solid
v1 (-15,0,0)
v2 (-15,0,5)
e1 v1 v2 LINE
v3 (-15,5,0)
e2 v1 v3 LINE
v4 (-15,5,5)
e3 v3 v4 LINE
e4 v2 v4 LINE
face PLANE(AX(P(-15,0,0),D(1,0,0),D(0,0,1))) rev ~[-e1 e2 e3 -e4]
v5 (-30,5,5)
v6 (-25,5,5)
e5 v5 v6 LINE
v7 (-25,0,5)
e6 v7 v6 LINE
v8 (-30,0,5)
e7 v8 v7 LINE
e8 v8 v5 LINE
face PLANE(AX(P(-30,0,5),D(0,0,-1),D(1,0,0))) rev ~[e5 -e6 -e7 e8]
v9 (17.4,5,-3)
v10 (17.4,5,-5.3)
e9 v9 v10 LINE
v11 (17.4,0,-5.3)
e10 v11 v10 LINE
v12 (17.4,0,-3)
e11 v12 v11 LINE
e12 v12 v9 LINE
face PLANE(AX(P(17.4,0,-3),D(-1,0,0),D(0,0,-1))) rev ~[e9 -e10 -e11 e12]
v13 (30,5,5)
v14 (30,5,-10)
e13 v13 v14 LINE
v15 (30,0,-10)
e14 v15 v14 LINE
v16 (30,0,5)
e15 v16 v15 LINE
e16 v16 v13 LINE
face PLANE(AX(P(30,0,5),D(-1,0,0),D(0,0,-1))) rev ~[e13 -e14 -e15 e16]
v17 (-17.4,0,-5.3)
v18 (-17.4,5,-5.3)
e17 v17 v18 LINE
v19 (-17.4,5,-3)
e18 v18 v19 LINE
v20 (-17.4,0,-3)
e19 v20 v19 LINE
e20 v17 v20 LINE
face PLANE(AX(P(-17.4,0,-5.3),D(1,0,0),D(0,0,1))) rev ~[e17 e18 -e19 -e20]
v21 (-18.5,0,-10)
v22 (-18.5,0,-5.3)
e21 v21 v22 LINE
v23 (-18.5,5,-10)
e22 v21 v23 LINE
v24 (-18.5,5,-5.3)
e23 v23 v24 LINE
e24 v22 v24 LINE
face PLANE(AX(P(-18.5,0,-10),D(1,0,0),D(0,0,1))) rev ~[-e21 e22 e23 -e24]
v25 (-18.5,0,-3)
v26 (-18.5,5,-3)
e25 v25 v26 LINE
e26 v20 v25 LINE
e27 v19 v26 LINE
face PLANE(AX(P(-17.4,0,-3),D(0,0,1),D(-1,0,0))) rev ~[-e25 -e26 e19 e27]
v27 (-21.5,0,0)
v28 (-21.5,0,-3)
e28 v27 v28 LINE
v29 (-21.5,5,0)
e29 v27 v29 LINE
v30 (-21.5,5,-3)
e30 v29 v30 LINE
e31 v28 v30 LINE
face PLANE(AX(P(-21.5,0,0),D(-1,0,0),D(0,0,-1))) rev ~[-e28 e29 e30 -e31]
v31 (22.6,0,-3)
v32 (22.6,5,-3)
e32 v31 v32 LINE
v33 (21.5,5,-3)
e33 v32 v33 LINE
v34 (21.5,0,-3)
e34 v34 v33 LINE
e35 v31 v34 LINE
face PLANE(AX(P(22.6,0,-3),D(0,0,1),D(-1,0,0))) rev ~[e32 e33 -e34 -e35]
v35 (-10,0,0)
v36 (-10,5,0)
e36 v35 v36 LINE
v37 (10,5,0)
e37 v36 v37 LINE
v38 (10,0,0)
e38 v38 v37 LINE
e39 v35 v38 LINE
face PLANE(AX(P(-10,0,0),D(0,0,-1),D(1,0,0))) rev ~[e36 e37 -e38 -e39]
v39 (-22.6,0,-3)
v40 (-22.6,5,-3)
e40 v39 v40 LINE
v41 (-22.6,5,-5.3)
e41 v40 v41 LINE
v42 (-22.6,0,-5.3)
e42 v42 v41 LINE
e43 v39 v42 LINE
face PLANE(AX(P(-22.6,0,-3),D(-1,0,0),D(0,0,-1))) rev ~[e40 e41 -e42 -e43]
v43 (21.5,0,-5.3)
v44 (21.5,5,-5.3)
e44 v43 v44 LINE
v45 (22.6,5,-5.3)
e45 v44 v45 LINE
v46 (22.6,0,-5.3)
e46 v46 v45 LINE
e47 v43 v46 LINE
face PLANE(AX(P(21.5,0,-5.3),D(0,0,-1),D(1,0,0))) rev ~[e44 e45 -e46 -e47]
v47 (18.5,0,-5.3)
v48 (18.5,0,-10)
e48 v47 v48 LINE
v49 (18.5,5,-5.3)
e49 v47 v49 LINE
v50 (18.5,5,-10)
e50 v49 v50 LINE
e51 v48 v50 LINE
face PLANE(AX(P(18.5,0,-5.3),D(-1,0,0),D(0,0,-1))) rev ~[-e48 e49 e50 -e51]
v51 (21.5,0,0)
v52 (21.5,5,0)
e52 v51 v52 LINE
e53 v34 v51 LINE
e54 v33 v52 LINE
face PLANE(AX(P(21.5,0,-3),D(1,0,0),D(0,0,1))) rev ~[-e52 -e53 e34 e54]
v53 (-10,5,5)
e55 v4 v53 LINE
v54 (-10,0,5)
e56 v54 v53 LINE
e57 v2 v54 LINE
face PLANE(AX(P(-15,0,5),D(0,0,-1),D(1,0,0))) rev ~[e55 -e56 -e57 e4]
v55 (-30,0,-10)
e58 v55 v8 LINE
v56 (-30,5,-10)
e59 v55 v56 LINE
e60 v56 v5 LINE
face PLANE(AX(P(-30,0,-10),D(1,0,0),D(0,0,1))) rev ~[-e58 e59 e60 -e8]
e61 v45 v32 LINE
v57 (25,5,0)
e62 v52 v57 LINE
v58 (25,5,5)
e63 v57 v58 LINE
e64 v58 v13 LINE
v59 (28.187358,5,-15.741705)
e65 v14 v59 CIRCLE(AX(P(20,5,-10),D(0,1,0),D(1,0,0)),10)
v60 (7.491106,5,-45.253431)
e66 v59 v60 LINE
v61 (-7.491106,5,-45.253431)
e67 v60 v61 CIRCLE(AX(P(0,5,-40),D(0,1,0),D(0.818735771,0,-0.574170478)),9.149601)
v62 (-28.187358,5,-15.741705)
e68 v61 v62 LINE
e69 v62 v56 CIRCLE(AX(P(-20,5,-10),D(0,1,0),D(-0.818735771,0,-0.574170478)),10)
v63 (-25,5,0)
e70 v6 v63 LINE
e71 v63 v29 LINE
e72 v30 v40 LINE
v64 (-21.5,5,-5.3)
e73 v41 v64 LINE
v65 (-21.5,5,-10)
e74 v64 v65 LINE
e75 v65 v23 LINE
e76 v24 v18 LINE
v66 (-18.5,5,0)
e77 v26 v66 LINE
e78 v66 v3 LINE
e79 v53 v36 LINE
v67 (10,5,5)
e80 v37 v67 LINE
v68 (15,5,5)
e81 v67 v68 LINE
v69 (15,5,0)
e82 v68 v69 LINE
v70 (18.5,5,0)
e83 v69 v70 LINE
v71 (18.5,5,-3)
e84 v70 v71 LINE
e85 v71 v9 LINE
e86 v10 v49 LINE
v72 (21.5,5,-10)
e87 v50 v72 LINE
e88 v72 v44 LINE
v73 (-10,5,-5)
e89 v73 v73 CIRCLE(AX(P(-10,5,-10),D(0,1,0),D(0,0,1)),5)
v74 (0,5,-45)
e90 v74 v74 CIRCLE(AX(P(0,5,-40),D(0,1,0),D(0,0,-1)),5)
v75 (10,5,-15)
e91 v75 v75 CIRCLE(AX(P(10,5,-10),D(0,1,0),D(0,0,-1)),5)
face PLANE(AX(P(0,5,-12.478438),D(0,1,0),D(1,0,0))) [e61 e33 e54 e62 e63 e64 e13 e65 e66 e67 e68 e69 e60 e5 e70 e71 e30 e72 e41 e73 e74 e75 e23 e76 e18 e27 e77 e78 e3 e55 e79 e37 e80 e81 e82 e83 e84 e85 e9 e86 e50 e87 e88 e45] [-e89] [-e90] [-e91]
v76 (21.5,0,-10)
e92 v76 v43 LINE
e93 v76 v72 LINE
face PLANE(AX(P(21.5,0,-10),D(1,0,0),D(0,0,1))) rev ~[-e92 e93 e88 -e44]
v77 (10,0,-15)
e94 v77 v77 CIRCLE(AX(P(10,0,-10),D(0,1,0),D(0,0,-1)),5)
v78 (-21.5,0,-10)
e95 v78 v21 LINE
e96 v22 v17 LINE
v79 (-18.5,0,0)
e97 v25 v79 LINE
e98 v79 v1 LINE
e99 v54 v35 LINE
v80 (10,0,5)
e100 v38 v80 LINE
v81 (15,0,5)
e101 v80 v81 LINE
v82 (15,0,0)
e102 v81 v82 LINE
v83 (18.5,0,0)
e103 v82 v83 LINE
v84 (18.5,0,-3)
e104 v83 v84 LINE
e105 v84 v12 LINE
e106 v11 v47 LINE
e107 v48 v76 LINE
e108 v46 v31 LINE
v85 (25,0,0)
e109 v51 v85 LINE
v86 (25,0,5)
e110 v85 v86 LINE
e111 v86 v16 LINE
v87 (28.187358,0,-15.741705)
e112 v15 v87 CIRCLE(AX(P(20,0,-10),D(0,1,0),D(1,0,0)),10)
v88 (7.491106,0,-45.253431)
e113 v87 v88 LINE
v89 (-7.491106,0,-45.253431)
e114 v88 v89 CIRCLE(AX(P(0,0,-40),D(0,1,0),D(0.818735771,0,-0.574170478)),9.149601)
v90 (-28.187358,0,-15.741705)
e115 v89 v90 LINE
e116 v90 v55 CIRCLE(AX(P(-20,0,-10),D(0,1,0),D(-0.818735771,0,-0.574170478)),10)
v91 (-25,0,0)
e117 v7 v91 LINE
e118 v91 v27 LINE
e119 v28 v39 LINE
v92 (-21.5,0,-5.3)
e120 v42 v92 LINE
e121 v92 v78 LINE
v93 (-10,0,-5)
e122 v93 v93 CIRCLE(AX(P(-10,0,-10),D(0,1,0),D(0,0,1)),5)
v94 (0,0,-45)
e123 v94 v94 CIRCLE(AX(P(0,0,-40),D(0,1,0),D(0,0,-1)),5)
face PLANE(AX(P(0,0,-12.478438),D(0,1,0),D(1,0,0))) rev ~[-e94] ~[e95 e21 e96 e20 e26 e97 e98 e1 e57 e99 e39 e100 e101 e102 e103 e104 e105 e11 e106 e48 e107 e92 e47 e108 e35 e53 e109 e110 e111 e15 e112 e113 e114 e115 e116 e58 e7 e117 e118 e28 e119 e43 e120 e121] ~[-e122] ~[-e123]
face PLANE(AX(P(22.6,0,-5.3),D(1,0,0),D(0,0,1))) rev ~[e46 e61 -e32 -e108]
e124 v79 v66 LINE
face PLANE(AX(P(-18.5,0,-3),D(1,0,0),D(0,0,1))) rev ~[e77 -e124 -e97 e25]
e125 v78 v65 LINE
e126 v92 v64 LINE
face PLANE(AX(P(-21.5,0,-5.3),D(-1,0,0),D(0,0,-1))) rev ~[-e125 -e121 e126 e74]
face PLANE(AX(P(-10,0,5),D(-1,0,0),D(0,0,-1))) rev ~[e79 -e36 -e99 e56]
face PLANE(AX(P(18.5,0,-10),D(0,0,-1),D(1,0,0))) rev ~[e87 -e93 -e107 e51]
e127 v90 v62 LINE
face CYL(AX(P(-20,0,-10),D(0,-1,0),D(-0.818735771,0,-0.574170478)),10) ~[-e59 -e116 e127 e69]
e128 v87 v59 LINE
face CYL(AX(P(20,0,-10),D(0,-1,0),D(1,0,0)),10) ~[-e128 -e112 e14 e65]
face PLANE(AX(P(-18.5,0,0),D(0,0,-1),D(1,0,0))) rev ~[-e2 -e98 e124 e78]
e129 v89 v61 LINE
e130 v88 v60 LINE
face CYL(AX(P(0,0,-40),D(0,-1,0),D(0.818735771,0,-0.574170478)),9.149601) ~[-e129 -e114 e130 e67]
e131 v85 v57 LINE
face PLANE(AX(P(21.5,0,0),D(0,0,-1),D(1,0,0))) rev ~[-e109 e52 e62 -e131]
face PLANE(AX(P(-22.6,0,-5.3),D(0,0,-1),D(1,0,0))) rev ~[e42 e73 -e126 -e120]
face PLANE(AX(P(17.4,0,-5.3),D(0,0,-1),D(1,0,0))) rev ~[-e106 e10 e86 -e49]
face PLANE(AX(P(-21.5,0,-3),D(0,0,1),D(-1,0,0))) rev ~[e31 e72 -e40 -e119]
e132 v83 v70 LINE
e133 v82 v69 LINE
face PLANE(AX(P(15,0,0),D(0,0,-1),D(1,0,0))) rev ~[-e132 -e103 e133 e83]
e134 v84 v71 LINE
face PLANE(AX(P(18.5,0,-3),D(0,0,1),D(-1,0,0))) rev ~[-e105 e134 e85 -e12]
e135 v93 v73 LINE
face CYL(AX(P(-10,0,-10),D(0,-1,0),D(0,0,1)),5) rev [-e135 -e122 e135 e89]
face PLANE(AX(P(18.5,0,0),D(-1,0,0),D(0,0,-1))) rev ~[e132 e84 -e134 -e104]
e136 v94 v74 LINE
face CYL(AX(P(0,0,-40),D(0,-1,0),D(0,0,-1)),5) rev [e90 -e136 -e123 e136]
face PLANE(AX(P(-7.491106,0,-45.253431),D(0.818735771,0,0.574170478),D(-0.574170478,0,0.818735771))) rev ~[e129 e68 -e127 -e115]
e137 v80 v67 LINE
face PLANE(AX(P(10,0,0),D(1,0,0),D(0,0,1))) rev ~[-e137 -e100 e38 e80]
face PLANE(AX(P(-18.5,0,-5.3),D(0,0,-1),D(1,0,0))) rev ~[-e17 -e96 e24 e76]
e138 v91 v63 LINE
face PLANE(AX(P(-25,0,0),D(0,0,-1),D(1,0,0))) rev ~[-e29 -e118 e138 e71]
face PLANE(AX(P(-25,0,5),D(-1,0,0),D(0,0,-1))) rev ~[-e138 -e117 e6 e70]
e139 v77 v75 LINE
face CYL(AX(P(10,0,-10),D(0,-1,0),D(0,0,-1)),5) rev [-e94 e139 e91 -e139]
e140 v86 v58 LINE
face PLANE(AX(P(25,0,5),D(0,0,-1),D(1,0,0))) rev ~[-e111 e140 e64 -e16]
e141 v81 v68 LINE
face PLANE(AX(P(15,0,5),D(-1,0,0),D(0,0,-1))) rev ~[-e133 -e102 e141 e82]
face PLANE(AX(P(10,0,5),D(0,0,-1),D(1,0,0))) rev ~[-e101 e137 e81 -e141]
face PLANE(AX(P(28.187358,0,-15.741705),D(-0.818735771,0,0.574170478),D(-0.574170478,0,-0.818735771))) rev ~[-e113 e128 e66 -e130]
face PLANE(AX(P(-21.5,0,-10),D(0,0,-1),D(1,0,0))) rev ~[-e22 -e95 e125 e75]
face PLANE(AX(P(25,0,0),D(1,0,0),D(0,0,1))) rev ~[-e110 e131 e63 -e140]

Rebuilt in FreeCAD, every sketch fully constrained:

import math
import FreeCAD as App
import Part
import Sketcher
from FreeCAD import Vector

doc = App.newDocument("Part")
body = doc.addObject("PartDesign::Body", "Body")

# Sketch on XZ plane
sketch1 = body.newObject("Sketcher::SketchObject", "Sketch")
sketch1.AttachmentSupport = (doc.getObject("XZ_Plane"), [""])
sketch1.MapMode = "FlatFace"
sketch1.addGeometry(Part.LineSegment(Vector(-30, -10, 0), Vector(-30, 5, 0)), False)
sketch1.addGeometry(Part.LineSegment(Vector(-30, 5, 0), Vector(-25, 5, 0)), False)
sketch1.addGeometry(Part.LineSegment(Vector(-25, 5, 0), Vector(-25, 0, 0)), False)
sketch1.addGeometry(Part.LineSegment(Vector(-25, 0, 0), Vector(-21.5, 0, 0)), False)
sketch1.addGeometry(Part.LineSegment(Vector(-21.5, 0, 0), Vector(-21.5, -3, 0)), False)
sketch1.addGeometry(Part.LineSegment(Vector(-21.5, -3, 0), Vector(-22.6, -3, 0)), False)
sketch1.addGeometry(Part.LineSegment(Vector(-22.6, -3, 0), Vector(-22.6, -5.3, 0)), False)
sketch1.addGeometry(Part.LineSegment(Vector(-22.6, -5.3, 0), Vector(-21.5, -5.3, 0)), False)
sketch1.addGeometry(Part.LineSegment(Vector(-21.5, -5.3, 0), Vector(-21.5, -10, 0)), False)
sketch1.addGeometry(Part.LineSegment(Vector(-21.5, -10, 0), Vector(-18.5, -10, 0)), False)
sketch1.addGeometry(Part.LineSegment(Vector(-18.5, -10, 0), Vector(-18.5, -5.3, 0)), False)
sketch1.addGeometry(Part.LineSegment(Vector(-18.5, -5.3, 0), Vector(-17.4, -5.3, 0)), False)
sketch1.addGeometry(Part.LineSegment(Vector(-17.4, -5.3, 0), Vector(-17.4, -3, 0)), False)
sketch1.addGeometry(Part.LineSegment(Vector(-17.4, -3, 0), Vector(-18.5, -3, 0)), False)
sketch1.addGeometry(Part.LineSegment(Vector(-18.5, -3, 0), Vector(-18.5, 0, 0)), False)
sketch1.addGeometry(Part.LineSegment(Vector(-18.5, 0, 0), Vector(-15, 0, 0)), False)
sketch1.addGeometry(Part.LineSegment(Vector(-15, 0, 0), Vector(-15, 5, 0)), False)
sketch1.addGeometry(Part.LineSegment(Vector(-15, 5, 0), Vector(-10, 5, 0)), False)
sketch1.addGeometry(Part.LineSegment(Vector(-10, 5, 0), Vector(-10, 0, 0)), False)
sketch1.addGeometry(Part.LineSegment(Vector(-10, 0, 0), Vector(10, 0, 0)), False)
sketch1.addGeometry(Part.LineSegment(Vector(10, 0, 0), Vector(10, 5, 0)), False)
sketch1.addGeometry(Part.LineSegment(Vector(10, 5, 0), Vector(15, 5, 0)), False)
sketch1.addGeometry(Part.LineSegment(Vector(15, 5, 0), Vector(15, 0, 0)), False)
sketch1.addGeometry(Part.LineSegment(Vector(15, 0, 0), Vector(18.5, 0, 0)), False)
sketch1.addGeometry(Part.LineSegment(Vector(18.5, 0, 0), Vector(18.5, -3, 0)), False)
sketch1.addGeometry(Part.LineSegment(Vector(18.5, -3, 0), Vector(17.4, -3, 0)), False)
sketch1.addGeometry(Part.LineSegment(Vector(17.4, -3, 0), Vector(17.4, -5.3, 0)), False)
sketch1.addGeometry(Part.LineSegment(Vector(17.4, -5.3, 0), Vector(18.5, -5.3, 0)), False)
sketch1.addGeometry(Part.LineSegment(Vector(18.5, -5.3, 0), Vector(18.5, -10, 0)), False)
sketch1.addGeometry(Part.LineSegment(Vector(18.5, -10, 0), Vector(21.5, -10, 0)), False)
sketch1.addGeometry(Part.LineSegment(Vector(21.5, -10, 0), Vector(21.5, -5.3, 0)), False)
sketch1.addGeometry(Part.LineSegment(Vector(21.5, -5.3, 0), Vector(22.6, -5.3, 0)), False)
sketch1.addGeometry(Part.LineSegment(Vector(22.6, -5.3, 0), Vector(22.6, -3, 0)), False)
sketch1.addGeometry(Part.LineSegment(Vector(22.6, -3, 0), Vector(21.5, -3, 0)), False)
sketch1.addGeometry(Part.LineSegment(Vector(21.5, -3, 0), Vector(21.5, 0, 0)), False)
sketch1.addGeometry(Part.LineSegment(Vector(21.5, 0, 0), Vector(25, 0, 0)), False)
sketch1.addGeometry(Part.LineSegment(Vector(25, 0, 0), Vector(25, 5, 0)), False)
sketch1.addGeometry(Part.LineSegment(Vector(25, 5, 0), Vector(30, 5, 0)), False)
sketch1.addGeometry(Part.LineSegment(Vector(30, 5, 0), Vector(30, -10, 0)), False)
sketch1.addGeometry(Part.ArcOfCircle(Part.Circle(Vector(20, -10, 0), Vector(0, 0, 1), 10), math.radians(-35.041561), math.radians(0)), False)
sketch1.addGeometry(Part.LineSegment(Vector(28.187358, -15.741705, 0), Vector(7.491106, -45.253431, 0)), False)
sketch1.addGeometry(Part.ArcOfCircle(Part.Circle(Vector(0, -40, 0), Vector(0, 0, 1), 9.149601), math.radians(-144.958439), math.radians(-35.041561)), False)
sketch1.addGeometry(Part.LineSegment(Vector(-7.491106, -45.253431, 0), Vector(-28.187358, -15.741705, 0)), False)
sketch1.addGeometry(Part.ArcOfCircle(Part.Circle(Vector(-20, -10, 0), Vector(0, 0, 1), 10), math.radians(180), math.radians(215.041561)), False)
sketch1.addGeometry(Part.Circle(Vector(-10, -10, 0), Vector(0, 0, 1), 5), False)
sketch1.addGeometry(Part.Circle(Vector(10, -10, 0), Vector(0, 0, 1), 5), False)
sketch1.addGeometry(Part.Circle(Vector(0, -40, 0), Vector(0, 0, 1), 5), False)
sketch1.addConstraint(Sketcher.Constraint("Coincident", 0, 2, 1, 1))
sketch1.addConstraint(Sketcher.Constraint("Coincident", 1, 2, 2, 1))
sketch1.addConstraint(Sketcher.Constraint("Coincident", 2, 2, 3, 1))
sketch1.addConstraint(Sketcher.Constraint("Coincident", 3, 2, 4, 1))
sketch1.addConstraint(Sketcher.Constraint("Coincident", 4, 2, 5, 1))
sketch1.addConstraint(Sketcher.Constraint("Coincident", 5, 2, 6, 1))
sketch1.addConstraint(Sketcher.Constraint("Coincident", 6, 2, 7, 1))
sketch1.addConstraint(Sketcher.Constraint("Coincident", 7, 2, 8, 1))
sketch1.addConstraint(Sketcher.Constraint("Coincident", 8, 2, 9, 1))
sketch1.addConstraint(Sketcher.Constraint("Coincident", 9, 2, 10, 1))
sketch1.addConstraint(Sketcher.Constraint("Coincident", 10, 2, 11, 1))
sketch1.addConstraint(Sketcher.Constraint("Coincident", 11, 2, 12, 1))
sketch1.addConstraint(Sketcher.Constraint("Coincident", 12, 2, 13, 1))
sketch1.addConstraint(Sketcher.Constraint("Coincident", 13, 2, 14, 1))
sketch1.addConstraint(Sketcher.Constraint("Coincident", 14, 2, 15, 1))
sketch1.addConstraint(Sketcher.Constraint("Coincident", 15, 2, 16, 1))
sketch1.addConstraint(Sketcher.Constraint("Coincident", 16, 2, 17, 1))
sketch1.addConstraint(Sketcher.Constraint("Coincident", 17, 2, 18, 1))
sketch1.addConstraint(Sketcher.Constraint("Coincident", 18, 2, 19, 1))
sketch1.addConstraint(Sketcher.Constraint("Coincident", 19, 2, 20, 1))
sketch1.addConstraint(Sketcher.Constraint("Coincident", 20, 2, 21, 1))
sketch1.addConstraint(Sketcher.Constraint("Coincident", 21, 2, 22, 1))
sketch1.addConstraint(Sketcher.Constraint("Coincident", 22, 2, 23, 1))
sketch1.addConstraint(Sketcher.Constraint("Coincident", 23, 2, 24, 1))
sketch1.addConstraint(Sketcher.Constraint("Coincident", 24, 2, 25, 1))
sketch1.addConstraint(Sketcher.Constraint("Coincident", 25, 2, 26, 1))
sketch1.addConstraint(Sketcher.Constraint("Coincident", 26, 2, 27, 1))
sketch1.addConstraint(Sketcher.Constraint("Coincident", 27, 2, 28, 1))
sketch1.addConstraint(Sketcher.Constraint("Coincident", 28, 2, 29, 1))
sketch1.addConstraint(Sketcher.Constraint("Coincident", 29, 2, 30, 1))
sketch1.addConstraint(Sketcher.Constraint("Coincident", 30, 2, 31, 1))
sketch1.addConstraint(Sketcher.Constraint("Coincident", 31, 2, 32, 1))
sketch1.addConstraint(Sketcher.Constraint("Coincident", 32, 2, 33, 1))
sketch1.addConstraint(Sketcher.Constraint("Coincident", 33, 2, 34, 1))
sketch1.addConstraint(Sketcher.Constraint("Coincident", 34, 2, 35, 1))
sketch1.addConstraint(Sketcher.Constraint("Coincident", 35, 2, 36, 1))
sketch1.addConstraint(Sketcher.Constraint("Coincident", 36, 2, 37, 1))
sketch1.addConstraint(Sketcher.Constraint("Coincident", 37, 2, 38, 1))
sketch1.addConstraint(Sketcher.Constraint("Tangent", 38, 2, 39, 2))
sketch1.addConstraint(Sketcher.Constraint("Tangent", 39, 1, 40, 1))
sketch1.addConstraint(Sketcher.Constraint("Tangent", 40, 2, 41, 2))
sketch1.addConstraint(Sketcher.Constraint("Tangent", 41, 1, 42, 1))
sketch1.addConstraint(Sketcher.Constraint("Tangent", 42, 2, 43, 2))
sketch1.addConstraint(Sketcher.Constraint("Tangent", 43, 1, 0, 1))
sketch1.addConstraint(Sketcher.Constraint("Vertical", 0))
sketch1.addConstraint(Sketcher.Constraint("Horizontal", 1))
sketch1.addConstraint(Sketcher.Constraint("Vertical", 2))
sketch1.addConstraint(Sketcher.Constraint("Horizontal", 3))
sketch1.addConstraint(Sketcher.Constraint("Vertical", 4))
sketch1.addConstraint(Sketcher.Constraint("Horizontal", 5))
sketch1.addConstraint(Sketcher.Constraint("Vertical", 6))
sketch1.addConstraint(Sketcher.Constraint("Horizontal", 7))
sketch1.addConstraint(Sketcher.Constraint("Vertical", 8))
sketch1.addConstraint(Sketcher.Constraint("Horizontal", 9))
sketch1.addConstraint(Sketcher.Constraint("Vertical", 10))
sketch1.addConstraint(Sketcher.Constraint("Horizontal", 11))
sketch1.addConstraint(Sketcher.Constraint("Vertical", 12))
sketch1.addConstraint(Sketcher.Constraint("Horizontal", 13))
sketch1.addConstraint(Sketcher.Constraint("Vertical", 14))
sketch1.addConstraint(Sketcher.Constraint("Horizontal", 15))
sketch1.addConstraint(Sketcher.Constraint("Vertical", 16))
sketch1.addConstraint(Sketcher.Constraint("Horizontal", 17))
sketch1.addConstraint(Sketcher.Constraint("Vertical", 18))
sketch1.addConstraint(Sketcher.Constraint("Horizontal", 19))
sketch1.addConstraint(Sketcher.Constraint("Vertical", 20))
sketch1.addConstraint(Sketcher.Constraint("Horizontal", 21))
sketch1.addConstraint(Sketcher.Constraint("Vertical", 22))
sketch1.addConstraint(Sketcher.Constraint("Horizontal", 23))
sketch1.addConstraint(Sketcher.Constraint("Vertical", 24))
sketch1.addConstraint(Sketcher.Constraint("Horizontal", 25))
sketch1.addConstraint(Sketcher.Constraint("Vertical", 26))
sketch1.addConstraint(Sketcher.Constraint("Horizontal", 27))
sketch1.addConstraint(Sketcher.Constraint("Vertical", 28))
sketch1.addConstraint(Sketcher.Constraint("Horizontal", 29))
sketch1.addConstraint(Sketcher.Constraint("Vertical", 30))
sketch1.addConstraint(Sketcher.Constraint("Horizontal", 31))
sketch1.addConstraint(Sketcher.Constraint("Vertical", 32))
sketch1.addConstraint(Sketcher.Constraint("Horizontal", 33))
sketch1.addConstraint(Sketcher.Constraint("Vertical", 34))
sketch1.addConstraint(Sketcher.Constraint("Horizontal", 35))
sketch1.addConstraint(Sketcher.Constraint("Vertical", 36))
sketch1.addConstraint(Sketcher.Constraint("Horizontal", 37))
sketch1.addConstraint(Sketcher.Constraint("Vertical", 38))
sketch1.addConstraint(Sketcher.Constraint("Coincident", 46, 3, 41, 3))
sketch1.addConstraint(Sketcher.Constraint("Equal", 39, 43))
sketch1.addConstraint(Sketcher.Constraint("Equal", 44, 45))
sketch1.addConstraint(Sketcher.Constraint("Equal", 45, 46))
sketch1.addConstraint(Sketcher.Constraint("Symmetric", 18, 2, 19, 2, -1, 1))
sketch1.addConstraint(Sketcher.Constraint("Symmetric", 15, 2, 22, 2, -1, 1))
sketch1.addConstraint(Sketcher.Constraint("Symmetric", 3, 2, 34, 2, -1, 1))
sketch1.addConstraint(Sketcher.Constraint("Symmetric", 39, 3, 43, 3, -2))
sketch1.addConstraint(Sketcher.Constraint("Symmetric", 44, 3, 45, 3, -2))
sketch1.addConstraint(Sketcher.Constraint("Symmetric", 14, 2, 23, 2, -2))
sketch1.addConstraint(Sketcher.Constraint("Symmetric", 12, 2, 25, 2, -2))
sketch1.addConstraint(Sketcher.Constraint("Symmetric", 10, 2, 27, 2, -2))
sketch1.addConstraint(Sketcher.Constraint("Symmetric", 8, 2, 29, 2, -2))
sketch1.addConstraint(Sketcher.Constraint("Symmetric", 6, 2, 31, 2, -2))
sketch1.addConstraint(Sketcher.Constraint("Symmetric", 2, 2, 35, 2, -2))
sketch1.addConstraint(Sketcher.Constraint("PointOnObject", 41, 3, -2))
sketch1.addConstraint(Sketcher.Constraint("Horizontal", 43, 3, 44, 3))
sketch1.addConstraint(Sketcher.Constraint("Horizontal", 45, 3, 8, 2))
sketch1.addConstraint(Sketcher.Constraint("Horizontal", 7, 2, 10, 2))
sketch1.addConstraint(Sketcher.Constraint("Horizontal", 5, 2, 12, 2))
sketch1.addConstraint(Sketcher.Constraint("Horizontal", 1, 2, 16, 2))
sketch1.addConstraint(Sketcher.Constraint("Horizontal", 17, 2, 20, 2))
sketch1.addConstraint(Sketcher.Constraint("Horizontal", 25, 2, 32, 2))
sketch1.addConstraint(Sketcher.Constraint("Horizontal", 21, 2, 36, 2))
sketch1.addConstraint(Sketcher.Constraint("Vertical", 4, 2, 7, 2))
sketch1.addConstraint(Sketcher.Constraint("Vertical", 10, 2, 13, 2))
sketch1.addConstraint(Sketcher.Constraint("Vertical", 44, 3, 17, 2))
sketch1.addConstraint(Sketcher.Constraint("Equal", 7, 11))
sketch1.addConstraint(Sketcher.Constraint("Equal", 3, 15))
sketch1.addConstraint(Sketcher.Constraint("Equal", 1, 17))
sketch1.addConstraint(Sketcher.Constraint("Equal", 37, 2))
sketch1.addConstraint(Sketcher.Constraint("Equal", 29, 4))
sketch1.addConstraint(Sketcher.Constraint("Diameter", 44, 10.0))
sketch1.addConstraint(Sketcher.Constraint("Radius", 39, 10.0))
sketch1.addConstraint(Sketcher.Constraint("DistanceX", 1, 1, 1, 2, 5.0))
sketch1.addConstraint(Sketcher.Constraint("DistanceX", 9, 1, 9, 2, 3.0))
sketch1.addConstraint(Sketcher.Constraint("DistanceX", 19, 1, 19, 2, 20.0))
sketch1.addConstraint(Sketcher.Constraint("DistanceY", 0, 1, 0, 2, 15.0))
sketch1.addConstraint(Sketcher.Constraint("DistanceX", 3, 1, 3, 2, 3.5))
sketch1.addConstraint(Sketcher.Constraint("DistanceX", 5, 2, 5, 1, 1.1))
sketch1.addConstraint(Sketcher.Constraint("DistanceY", 6, 2, 6, 1, 2.3))
sketch1.addConstraint(Sketcher.Constraint("DistanceY", 41, 3, -1, 1, 40.0))
sketch1.addConstraint(Sketcher.Constraint("Radius", 41, 9.149601))
pad1 = body.newObject("PartDesign::Pad", "Pad")
pad1.Profile = sketch1
pad1.Length = 5
pad1.Reversed = True

doc.recompute()
